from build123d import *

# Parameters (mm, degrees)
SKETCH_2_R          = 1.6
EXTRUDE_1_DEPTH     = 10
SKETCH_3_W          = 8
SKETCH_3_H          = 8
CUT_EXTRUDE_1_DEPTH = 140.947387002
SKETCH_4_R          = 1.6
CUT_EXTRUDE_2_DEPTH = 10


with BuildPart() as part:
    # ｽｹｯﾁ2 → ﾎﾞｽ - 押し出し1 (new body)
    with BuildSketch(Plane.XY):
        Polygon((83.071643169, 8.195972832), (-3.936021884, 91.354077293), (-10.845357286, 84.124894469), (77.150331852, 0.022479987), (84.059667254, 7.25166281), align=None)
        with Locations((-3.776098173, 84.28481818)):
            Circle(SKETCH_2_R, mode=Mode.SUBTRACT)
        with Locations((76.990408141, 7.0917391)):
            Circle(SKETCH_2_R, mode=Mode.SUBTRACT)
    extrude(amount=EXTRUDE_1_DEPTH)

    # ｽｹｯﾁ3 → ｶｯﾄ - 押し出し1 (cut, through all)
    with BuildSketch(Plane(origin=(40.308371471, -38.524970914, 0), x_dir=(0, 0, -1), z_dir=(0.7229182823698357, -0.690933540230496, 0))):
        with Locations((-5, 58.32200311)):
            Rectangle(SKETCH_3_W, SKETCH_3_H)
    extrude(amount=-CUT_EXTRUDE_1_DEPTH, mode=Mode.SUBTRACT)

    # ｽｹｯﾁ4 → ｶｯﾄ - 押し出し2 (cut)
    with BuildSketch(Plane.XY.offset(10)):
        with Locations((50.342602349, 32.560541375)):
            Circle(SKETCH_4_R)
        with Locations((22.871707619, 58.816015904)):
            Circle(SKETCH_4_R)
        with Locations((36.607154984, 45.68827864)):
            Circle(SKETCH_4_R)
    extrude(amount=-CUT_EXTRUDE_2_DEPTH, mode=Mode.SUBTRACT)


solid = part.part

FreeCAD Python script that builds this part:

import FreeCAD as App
import Part
import Sketcher


def add_polygon(sketch, points):
    """Adds a closed chain of lines whose ends are joined by coincident constraints."""
    first, n = sketch.GeometryCount, len(points)
    for a, b in zip(points, points[1:] + points[:1]):
        sketch.addGeometry(Part.LineSegment(App.Vector(*a, 0), App.Vector(*b, 0)), False)
    for i in range(n):
        sketch.addConstraint(Sketcher.Constraint("Coincident", first + i, 2, first + (i + 1) % n, 1))

doc = App.newDocument("Part")
params = doc.addObject("Spreadsheet::Sheet", "Params")
for row, (alias, value) in enumerate([
    ("sketch1_diameter", "3.2 mm"),
    ("sketch1_length", "10 mm"),
    ("pad1_length", "10 mm"),
    ("sketch2_width", "8 mm"),
    ("sketch3_diameter", "3.2 mm"),
    ("pocket2_length", "10 mm"),
], start=1):
    params.set(f"A{row}", alias)
    params.set(f"B{row}", "=" + value)
    params.setAlias(f"B{row}", alias)

body = doc.addObject("PartDesign::Body", "Body")

# Sketch on XY plane
sketch1 = doc.addObject("Sketcher::SketchObject", "Sketch")
body.addObject(sketch1)
sketch1.AttachmentSupport = (doc.XY_Plane, [""])
sketch1.MapMode = "FlatFace"
add_polygon(sketch1, [(83.1, 8.2), (-3.9, 91.4), (-10.8, 84.1), (77.2, 0), (84.1, 7.3)])  # lines 0-4
sketch1.addGeometry(Part.Circle(App.Vector(77, 7.1, 0), App.Vector(0, 0, 1), 1.6), False)  # 5
sketch1.addGeometry(Part.Circle(App.Vector(-3.8, 84.3, 0), App.Vector(0, 0, 1), 1.6), False)  # 6
sketch1.addConstraint(Sketcher.Constraint("Equal", 5, 6))
sketch1.addConstraint(Sketcher.Constraint("Perpendicular", 0, 1))
sketch1.addConstraint(Sketcher.Constraint("Perpendicular", 1, 2))
sketch1.addConstraint(Sketcher.Constraint("Perpendicular", 2, 3))
sketch1.addConstraint(Sketcher.Constraint("Perpendicular", 3, 4))
sketch1.addConstraint(Sketcher.Constraint("Diameter", 5, 3.2))
sketch1.addConstraint(Sketcher.Constraint("Distance", 1, 10.0))
sketch1.addConstraint(Sketcher.Constraint("DistanceX", 6, 3, -1, 1, 3.776098))
sketch1.addConstraint(Sketcher.Constraint("Distance", 2, 121.722871))
sketch1.addConstraint(Sketcher.Constraint("DistanceX", -1, 1, 5, 3, 76.990408))
sketch1.addConstraint(Sketcher.Constraint("DistanceY", -1, 1, 5, 3, 7.091739))
sketch1.addConstraint(Sketcher.Constraint("DistanceY", -1, 1, 6, 3, 84.284818))
sketch1.addConstraint(Sketcher.Constraint("DistanceX", 0, 2, -1, 1, 3.936022))
sketch1.addConstraint(Sketcher.Constraint("DistanceX", -1, 1, 2, 2, 77.150332))
sketch1.addConstraint(Sketcher.Constraint("DistanceY", -1, 1, 2, 2, 0.02248))
sketch1.addConstraint(Sketcher.Constraint("DistanceY", 3, 2, 4, 2, 0.94431))
sketch1.setExpression("Constraints[10]", "Params.sketch1_diameter")
sketch1.setExpression("Constraints[11]", "Params.sketch1_length")
pad1 = doc.addObject("PartDesign::Pad", "Pad")
body.addObject(pad1)
pad1.Profile = sketch1
pad1.setExpression("Length", "Params.pad1_length")

# Sketch on an angled plane
sketch2 = doc.addObject("Sketcher::SketchObject", "Sketch001")
body.addObject(sketch2)
sketch2.Placement = App.Placement(App.Vector(40.308371, -38.524971, 0), App.Rotation(App.Vector(0, 0, -1), App.Vector(0.69093354, 0.722918282, 0), App.Vector(0.722918282, -0.69093354, 0), "ZXY"))
add_polygon(sketch2, [(-9, 62), (-9, 54), (-1, 54), (-1, 62)])  # lines 0-3
sketch2.addConstraint(Sketcher.Constraint("Vertical", 0))
sketch2.addConstraint(Sketcher.Constraint("Horizontal", 1))
sketch2.addConstraint(Sketcher.Constraint("Vertical", 2))
sketch2.addConstraint(Sketcher.Constraint("Horizontal", 3))
sketch2.addConstraint(Sketcher.Constraint("Equal", 3, 0))
sketch2.addConstraint(Sketcher.Constraint("DistanceX", 1, 1, 1, 2, 8.0))
sketch2.addConstraint(Sketcher.Constraint("DistanceX", 0, 2, -1, 1, 9.0))
sketch2.addConstraint(Sketcher.Constraint("DistanceY", -1, 1, 0, 2, 54.322003))
sketch2.setExpression("Constraints[9]", "Params.sketch2_width")
pocket1 = doc.addObject("PartDesign::Pocket", "Pocket")
body.addObject(pocket1)
pocket1.Profile = sketch2
pocket1.Type = "ThroughAll"

# Sketch on XY plane
sketch3 = doc.addObject("Sketcher::SketchObject", "Sketch002")
body.addObject(sketch3)
sketch3.AttachmentSupport = (doc.XY_Plane, [""])
sketch3.MapMode = "FlatFace"
sketch3.AttachmentOffset = App.Placement(App.Vector(0, 0, 10), App.Rotation())
sketch3.addGeometry(Part.Circle(App.Vector(50.3, 32.6, 0), App.Vector(0, 0, 1), 1.6), False)
sketch3.addGeometry(Part.Circle(App.Vector(22.9, 58.8, 0), App.Vector(0, 0, 1), 1.6), False)
sketch3.addGeometry(Part.Circle(App.Vector(36.6, 45.7, 0), App.Vector(0, 0, 1), 1.6), False)
sketch3.addConstraint(Sketcher.Constraint("Equal", 0, 1))
sketch3.addConstraint(Sketcher.Constraint("Equal", 1, 2))
sketch3.addConstraint(Sketcher.Constraint("Diameter", 0, 3.2))
sketch3.addConstraint(Sketcher.Constraint("DistanceY", -1, 1, 0, 3, 32.560541))
sketch3.addConstraint(Sketcher.Constraint("DistanceY", -1, 1, 2, 3, 45.688279))
sketch3.addConstraint(Sketcher.Constraint("DistanceX", -1, 1, 0, 3, 50.342602))
sketch3.addConstraint(Sketcher.Constraint("DistanceX", -1, 1, 1, 3, 22.871708))
sketch3.addConstraint(Sketcher.Constraint("DistanceY", -1, 1, 1, 3, 58.816016))
sketch3.addConstraint(Sketcher.Constraint("DistanceX", -1, 1, 2, 3, 36.607155))
sketch3.setExpression("Constraints[2]", "Params.sketch3_diameter")
pocket2 = doc.addObject("PartDesign::Pocket", "Pocket001")
body.addObject(pocket2)
pocket2.Profile = sketch3
pocket2.setExpression("Length", "Params.pocket2_length")

doc.recompute()
